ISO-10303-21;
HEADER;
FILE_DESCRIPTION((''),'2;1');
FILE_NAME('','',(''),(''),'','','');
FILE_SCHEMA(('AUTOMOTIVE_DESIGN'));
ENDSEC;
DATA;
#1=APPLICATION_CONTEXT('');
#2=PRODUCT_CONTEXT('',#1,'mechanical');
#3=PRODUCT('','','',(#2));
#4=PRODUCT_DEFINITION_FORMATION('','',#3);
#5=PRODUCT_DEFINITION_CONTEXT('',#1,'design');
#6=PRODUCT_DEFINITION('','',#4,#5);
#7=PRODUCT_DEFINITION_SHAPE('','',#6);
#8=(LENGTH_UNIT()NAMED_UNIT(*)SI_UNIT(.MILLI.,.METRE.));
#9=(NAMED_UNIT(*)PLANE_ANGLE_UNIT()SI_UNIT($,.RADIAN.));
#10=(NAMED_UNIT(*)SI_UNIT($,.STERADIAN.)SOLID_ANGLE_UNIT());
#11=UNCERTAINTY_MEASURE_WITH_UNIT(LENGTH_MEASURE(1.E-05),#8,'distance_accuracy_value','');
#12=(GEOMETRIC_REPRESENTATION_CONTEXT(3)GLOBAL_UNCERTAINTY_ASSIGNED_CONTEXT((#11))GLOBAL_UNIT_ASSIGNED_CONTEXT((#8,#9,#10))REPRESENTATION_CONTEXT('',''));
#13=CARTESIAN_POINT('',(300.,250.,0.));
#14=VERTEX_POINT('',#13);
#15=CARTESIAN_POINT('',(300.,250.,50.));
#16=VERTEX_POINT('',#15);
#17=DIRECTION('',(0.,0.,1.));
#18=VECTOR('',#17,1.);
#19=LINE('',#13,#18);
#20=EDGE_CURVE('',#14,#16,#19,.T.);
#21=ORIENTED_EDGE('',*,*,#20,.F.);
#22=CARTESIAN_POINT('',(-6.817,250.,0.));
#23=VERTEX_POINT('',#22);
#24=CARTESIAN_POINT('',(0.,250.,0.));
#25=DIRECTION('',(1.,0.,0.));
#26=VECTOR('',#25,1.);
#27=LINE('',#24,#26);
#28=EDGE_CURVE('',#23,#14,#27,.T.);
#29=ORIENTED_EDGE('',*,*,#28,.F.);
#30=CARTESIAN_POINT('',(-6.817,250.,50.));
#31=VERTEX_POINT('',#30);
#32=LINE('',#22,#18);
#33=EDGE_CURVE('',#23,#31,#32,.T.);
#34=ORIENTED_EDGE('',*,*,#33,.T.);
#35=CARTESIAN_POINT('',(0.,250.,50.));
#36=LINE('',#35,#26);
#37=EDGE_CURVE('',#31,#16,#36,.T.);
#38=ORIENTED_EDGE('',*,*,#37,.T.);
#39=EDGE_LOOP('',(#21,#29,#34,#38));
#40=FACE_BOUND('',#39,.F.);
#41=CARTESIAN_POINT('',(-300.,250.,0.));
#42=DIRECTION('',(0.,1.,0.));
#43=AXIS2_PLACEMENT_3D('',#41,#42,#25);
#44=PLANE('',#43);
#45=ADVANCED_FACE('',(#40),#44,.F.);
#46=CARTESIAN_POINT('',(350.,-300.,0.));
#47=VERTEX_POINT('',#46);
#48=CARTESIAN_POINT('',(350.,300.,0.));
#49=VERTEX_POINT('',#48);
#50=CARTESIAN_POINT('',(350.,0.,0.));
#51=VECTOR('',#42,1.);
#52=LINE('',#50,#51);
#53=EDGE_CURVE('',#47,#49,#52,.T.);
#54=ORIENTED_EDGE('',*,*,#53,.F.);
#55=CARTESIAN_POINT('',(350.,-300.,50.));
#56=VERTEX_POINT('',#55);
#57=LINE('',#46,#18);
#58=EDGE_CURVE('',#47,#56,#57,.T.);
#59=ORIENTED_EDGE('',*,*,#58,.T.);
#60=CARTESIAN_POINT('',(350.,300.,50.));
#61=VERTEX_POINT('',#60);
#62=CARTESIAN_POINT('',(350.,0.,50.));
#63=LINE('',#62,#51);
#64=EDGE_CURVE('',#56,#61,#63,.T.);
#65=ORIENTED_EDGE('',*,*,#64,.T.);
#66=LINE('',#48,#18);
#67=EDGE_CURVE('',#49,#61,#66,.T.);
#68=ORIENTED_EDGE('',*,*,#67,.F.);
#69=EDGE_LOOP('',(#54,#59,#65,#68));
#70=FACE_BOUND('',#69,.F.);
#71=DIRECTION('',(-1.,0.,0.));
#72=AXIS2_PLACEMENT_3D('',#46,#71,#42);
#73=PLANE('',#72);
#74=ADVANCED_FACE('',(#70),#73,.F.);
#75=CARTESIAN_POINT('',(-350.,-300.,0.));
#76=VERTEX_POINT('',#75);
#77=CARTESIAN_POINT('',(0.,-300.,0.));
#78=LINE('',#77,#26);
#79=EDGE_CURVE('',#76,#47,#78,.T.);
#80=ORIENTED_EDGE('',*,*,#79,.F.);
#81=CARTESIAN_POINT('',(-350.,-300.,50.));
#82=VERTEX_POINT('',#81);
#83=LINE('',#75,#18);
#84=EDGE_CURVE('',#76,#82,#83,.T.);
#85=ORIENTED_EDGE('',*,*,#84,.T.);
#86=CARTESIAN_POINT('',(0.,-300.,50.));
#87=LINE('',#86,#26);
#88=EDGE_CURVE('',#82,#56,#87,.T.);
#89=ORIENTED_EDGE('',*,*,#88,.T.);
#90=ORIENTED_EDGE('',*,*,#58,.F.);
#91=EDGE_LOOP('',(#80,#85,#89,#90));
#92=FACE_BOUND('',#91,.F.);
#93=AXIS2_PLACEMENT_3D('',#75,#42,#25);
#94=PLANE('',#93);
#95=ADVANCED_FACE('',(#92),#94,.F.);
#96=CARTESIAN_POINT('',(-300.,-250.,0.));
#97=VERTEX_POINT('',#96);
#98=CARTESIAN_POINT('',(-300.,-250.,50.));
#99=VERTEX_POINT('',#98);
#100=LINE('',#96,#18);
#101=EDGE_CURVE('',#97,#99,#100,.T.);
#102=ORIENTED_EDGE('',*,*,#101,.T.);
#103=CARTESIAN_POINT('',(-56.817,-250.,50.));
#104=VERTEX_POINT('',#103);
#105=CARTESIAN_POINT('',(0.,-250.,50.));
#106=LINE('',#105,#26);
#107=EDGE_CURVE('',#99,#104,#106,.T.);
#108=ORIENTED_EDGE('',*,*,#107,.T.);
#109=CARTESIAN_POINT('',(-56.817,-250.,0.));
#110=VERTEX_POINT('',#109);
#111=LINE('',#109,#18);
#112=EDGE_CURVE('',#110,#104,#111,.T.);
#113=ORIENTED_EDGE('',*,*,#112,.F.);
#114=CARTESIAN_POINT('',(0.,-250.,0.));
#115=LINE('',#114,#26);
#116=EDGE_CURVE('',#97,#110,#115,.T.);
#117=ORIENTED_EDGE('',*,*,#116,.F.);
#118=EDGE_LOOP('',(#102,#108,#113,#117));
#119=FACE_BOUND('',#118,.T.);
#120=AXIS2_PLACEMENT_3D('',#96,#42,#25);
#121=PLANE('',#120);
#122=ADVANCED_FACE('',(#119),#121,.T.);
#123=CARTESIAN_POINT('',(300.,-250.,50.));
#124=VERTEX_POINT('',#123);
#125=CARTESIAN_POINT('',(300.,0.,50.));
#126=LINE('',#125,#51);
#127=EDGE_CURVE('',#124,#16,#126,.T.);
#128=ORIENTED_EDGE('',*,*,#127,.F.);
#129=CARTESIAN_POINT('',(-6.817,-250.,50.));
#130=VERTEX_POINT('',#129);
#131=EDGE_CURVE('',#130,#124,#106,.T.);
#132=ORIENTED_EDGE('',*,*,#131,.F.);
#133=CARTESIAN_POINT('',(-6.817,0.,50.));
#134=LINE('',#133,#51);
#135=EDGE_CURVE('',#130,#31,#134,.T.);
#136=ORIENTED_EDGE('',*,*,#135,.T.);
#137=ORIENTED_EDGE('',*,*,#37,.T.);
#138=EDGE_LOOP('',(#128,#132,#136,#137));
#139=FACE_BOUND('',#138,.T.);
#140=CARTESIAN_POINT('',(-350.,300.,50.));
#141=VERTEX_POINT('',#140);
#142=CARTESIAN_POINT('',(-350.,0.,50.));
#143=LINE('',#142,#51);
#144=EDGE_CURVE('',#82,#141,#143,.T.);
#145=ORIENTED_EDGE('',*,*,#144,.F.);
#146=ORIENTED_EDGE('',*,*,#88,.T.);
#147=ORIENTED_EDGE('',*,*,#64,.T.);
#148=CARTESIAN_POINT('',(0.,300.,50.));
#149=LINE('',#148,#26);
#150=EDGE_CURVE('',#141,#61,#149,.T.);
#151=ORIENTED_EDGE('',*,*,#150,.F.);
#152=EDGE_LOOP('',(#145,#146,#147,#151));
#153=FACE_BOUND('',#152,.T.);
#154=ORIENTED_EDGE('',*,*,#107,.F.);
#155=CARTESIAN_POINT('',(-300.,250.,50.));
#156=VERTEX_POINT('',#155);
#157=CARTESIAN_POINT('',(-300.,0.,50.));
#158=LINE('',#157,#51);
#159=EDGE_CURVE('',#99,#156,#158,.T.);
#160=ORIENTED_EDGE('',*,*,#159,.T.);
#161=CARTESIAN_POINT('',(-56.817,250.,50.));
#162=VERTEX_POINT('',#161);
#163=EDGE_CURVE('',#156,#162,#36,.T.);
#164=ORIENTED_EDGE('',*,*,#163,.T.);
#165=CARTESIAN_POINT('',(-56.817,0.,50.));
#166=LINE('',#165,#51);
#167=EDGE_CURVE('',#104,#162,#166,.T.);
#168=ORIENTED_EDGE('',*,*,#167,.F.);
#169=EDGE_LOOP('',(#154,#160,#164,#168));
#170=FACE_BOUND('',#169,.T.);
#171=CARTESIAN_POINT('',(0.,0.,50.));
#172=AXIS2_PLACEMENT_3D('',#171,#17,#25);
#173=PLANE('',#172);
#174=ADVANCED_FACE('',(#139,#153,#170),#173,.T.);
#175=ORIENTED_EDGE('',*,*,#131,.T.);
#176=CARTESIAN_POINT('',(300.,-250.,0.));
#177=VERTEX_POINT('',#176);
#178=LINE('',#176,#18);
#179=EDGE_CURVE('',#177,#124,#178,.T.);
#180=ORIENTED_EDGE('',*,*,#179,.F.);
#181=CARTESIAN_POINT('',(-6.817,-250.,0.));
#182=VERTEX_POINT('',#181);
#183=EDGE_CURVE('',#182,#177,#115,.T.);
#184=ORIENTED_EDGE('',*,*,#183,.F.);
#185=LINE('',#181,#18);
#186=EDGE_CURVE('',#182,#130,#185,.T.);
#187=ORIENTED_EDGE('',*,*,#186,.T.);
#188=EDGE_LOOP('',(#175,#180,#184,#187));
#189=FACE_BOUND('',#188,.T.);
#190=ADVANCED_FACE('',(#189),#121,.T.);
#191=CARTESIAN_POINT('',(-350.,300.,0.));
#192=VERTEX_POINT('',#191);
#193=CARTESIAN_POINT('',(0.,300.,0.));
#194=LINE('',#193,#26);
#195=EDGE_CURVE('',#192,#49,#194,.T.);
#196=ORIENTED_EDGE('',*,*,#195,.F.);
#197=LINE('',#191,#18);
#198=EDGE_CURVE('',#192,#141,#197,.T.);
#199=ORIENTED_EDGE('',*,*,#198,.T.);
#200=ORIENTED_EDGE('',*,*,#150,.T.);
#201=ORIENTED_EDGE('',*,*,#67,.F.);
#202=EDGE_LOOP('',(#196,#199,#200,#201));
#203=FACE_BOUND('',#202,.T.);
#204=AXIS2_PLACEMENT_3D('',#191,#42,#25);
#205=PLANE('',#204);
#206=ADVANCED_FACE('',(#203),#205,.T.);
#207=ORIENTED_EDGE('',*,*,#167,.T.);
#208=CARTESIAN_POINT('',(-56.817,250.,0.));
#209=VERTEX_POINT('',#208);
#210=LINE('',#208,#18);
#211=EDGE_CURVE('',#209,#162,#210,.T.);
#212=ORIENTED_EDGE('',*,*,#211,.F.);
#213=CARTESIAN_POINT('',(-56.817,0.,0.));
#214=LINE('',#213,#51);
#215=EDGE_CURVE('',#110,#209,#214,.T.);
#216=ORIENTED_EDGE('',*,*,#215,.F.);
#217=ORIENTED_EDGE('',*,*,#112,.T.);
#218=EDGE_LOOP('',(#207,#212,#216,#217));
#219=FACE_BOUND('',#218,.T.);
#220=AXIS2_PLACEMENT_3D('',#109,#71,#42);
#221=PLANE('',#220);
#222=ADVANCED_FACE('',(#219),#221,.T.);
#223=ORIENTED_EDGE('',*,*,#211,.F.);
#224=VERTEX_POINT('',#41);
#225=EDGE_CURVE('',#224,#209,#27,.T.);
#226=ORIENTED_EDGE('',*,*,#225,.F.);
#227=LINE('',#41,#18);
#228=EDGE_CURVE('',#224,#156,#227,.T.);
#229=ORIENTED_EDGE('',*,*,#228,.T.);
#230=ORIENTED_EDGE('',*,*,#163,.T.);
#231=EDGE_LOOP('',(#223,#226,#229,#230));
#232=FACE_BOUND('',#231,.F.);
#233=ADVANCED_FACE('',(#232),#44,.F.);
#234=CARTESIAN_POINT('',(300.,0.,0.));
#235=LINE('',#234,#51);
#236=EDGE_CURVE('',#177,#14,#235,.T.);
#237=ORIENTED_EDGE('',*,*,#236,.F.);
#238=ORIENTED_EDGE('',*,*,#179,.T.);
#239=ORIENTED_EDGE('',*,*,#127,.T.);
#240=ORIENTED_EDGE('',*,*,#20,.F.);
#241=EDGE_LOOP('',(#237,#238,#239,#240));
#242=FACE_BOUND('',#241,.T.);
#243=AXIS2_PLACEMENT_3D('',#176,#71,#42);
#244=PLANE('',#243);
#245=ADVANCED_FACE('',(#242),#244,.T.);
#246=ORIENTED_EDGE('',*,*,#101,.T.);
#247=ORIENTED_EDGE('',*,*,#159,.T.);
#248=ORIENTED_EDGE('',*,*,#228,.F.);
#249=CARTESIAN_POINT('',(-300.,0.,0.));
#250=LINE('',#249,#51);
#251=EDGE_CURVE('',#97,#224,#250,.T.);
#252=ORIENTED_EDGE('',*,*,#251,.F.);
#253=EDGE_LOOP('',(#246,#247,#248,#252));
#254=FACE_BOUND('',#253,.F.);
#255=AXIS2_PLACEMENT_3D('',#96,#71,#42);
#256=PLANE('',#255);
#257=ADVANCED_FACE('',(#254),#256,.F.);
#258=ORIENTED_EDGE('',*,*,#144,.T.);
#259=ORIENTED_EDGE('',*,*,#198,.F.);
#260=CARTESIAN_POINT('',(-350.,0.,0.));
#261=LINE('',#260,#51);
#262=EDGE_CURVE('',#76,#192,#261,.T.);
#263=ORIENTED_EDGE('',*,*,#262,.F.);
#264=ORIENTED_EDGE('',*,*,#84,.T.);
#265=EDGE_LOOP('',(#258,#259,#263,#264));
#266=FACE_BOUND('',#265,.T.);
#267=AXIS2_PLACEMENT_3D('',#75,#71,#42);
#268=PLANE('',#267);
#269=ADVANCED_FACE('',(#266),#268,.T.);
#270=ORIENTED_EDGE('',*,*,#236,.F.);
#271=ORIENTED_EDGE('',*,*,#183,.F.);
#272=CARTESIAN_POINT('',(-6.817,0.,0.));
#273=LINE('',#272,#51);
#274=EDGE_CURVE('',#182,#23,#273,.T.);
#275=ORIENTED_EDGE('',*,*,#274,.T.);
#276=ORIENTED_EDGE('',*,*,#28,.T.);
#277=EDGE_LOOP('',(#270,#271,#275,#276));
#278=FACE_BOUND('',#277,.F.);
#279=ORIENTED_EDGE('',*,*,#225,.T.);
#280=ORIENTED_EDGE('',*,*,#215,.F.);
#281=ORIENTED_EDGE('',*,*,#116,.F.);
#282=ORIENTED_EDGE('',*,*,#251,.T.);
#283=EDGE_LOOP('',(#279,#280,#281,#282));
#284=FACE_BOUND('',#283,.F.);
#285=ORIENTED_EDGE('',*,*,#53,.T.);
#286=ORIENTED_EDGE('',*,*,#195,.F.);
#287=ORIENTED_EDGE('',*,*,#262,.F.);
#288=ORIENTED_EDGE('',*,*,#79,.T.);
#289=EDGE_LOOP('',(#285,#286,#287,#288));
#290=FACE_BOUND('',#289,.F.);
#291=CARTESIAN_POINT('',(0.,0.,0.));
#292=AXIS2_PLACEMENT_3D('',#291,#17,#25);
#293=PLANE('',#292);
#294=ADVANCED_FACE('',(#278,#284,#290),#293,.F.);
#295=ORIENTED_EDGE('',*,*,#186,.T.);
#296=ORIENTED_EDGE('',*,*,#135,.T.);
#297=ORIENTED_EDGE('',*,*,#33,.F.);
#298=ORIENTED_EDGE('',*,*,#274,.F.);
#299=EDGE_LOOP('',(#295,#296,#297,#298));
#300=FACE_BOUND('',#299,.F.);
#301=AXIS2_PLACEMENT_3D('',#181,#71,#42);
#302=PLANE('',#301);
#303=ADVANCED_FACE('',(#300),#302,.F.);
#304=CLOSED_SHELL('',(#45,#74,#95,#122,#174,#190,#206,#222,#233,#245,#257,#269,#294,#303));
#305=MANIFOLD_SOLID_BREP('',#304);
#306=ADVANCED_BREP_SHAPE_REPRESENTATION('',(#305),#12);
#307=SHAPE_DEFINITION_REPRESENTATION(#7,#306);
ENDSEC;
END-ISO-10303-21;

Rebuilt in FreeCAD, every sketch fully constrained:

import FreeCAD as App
import Part
import Sketcher


def add_polygon(sketch, points):
    """Adds a closed chain of lines whose ends are joined by coincident constraints."""
    first, n = sketch.GeometryCount, len(points)
    for a, b in zip(points, points[1:] + points[:1]):
        sketch.addGeometry(Part.LineSegment(App.Vector(*a, 0), App.Vector(*b, 0)), False)
    for i in range(n):
        sketch.addConstraint(Sketcher.Constraint("Coincident", first + i, 2, first + (i + 1) % n, 1))

doc = App.newDocument("Part")
body = doc.addObject("PartDesign::Body", "Body")

# Sketch on XY plane
sketch1 = body.newObject("Sketcher::SketchObject", "Sketch")
sketch1.AttachmentSupport = (doc.getObject("XY_Plane"), [""])
sketch1.MapMode = "FlatFace"
add_polygon(sketch1, [(-350, 300), (-350, -300), (350, -300), (350, 300)])  # lines 0-3
add_polygon(sketch1, [(300, -250), (-300, -250), (-300, 250), (300, 250)])  # lines 4-7
sketch1.addConstraint(Sketcher.Constraint("Vertical", 0))
sketch1.addConstraint(Sketcher.Constraint("Horizontal", 1))
sketch1.addConstraint(Sketcher.Constraint("Vertical", 2))
sketch1.addConstraint(Sketcher.Constraint("Horizontal", 3))
sketch1.addConstraint(Sketcher.Constraint("Horizontal", 4))
sketch1.addConstraint(Sketcher.Constraint("Vertical", 5))
sketch1.addConstraint(Sketcher.Constraint("Horizontal", 6))
sketch1.addConstraint(Sketcher.Constraint("Vertical", 7))
sketch1.addConstraint(Sketcher.Constraint("Symmetric", 0, 2, 2, 2, -1, 1))
sketch1.addConstraint(Sketcher.Constraint("Symmetric", 4, 2, 6, 2, -1, 1))
sketch1.addConstraint(Sketcher.Constraint("Equal", 6, 0))
sketch1.addConstraint(Sketcher.Constraint("DistanceX", 1, 1, 1, 2, 700.0))
sketch1.addConstraint(Sketcher.Constraint("DistanceX", 4, 2, 4, 1, 600.0))
sketch1.addConstraint(Sketcher.Constraint("DistanceY", 5, 1, 5, 2, 500.0))
pad1 = body.newObject("PartDesign::Pad", "Pad")
pad1.Profile = sketch1
pad1.Length = 50

# Sketch on XY plane
sketch2 = body.newObject("Sketcher::SketchObject", "Sketch001")
sketch2.AttachmentSupport = (doc.getObject("XY_Plane"), [""])
sketch2.MapMode = "FlatFace"
add_polygon(sketch2, [(-56.817, 250), (-56.817, -250), (-6.817, -250), (-6.817, 250)])  # lines 0-3
sketch2.addConstraint(Sketcher.Constraint("Vertical", 0))
sketch2.addConstraint(Sketcher.Constraint("Horizontal", 1))
sketch2.addConstraint(Sketcher.Constraint("Vertical", 2))
sketch2.addConstraint(Sketcher.Constraint("Horizontal", 3))
sketch2.addConstraint(Sketcher.Constraint("DistanceX", 1, 1, 1, 2, 50.0))
sketch2.addConstraint(Sketcher.Constraint("DistanceY", 0, 2, 0, 1, 500.0))
sketch2.addConstraint(Sketcher.Constraint("DistanceY", 0, 2, -1, 1, 250.0))
sketch2.addConstraint(Sketcher.Constraint("DistanceX", 0, 2, -1, 1, 56.817))
pad2 = body.newObject("PartDesign::Pad", "Pad001")
pad2.Profile = sketch2
pad2.Length = 50

doc.recompute()
